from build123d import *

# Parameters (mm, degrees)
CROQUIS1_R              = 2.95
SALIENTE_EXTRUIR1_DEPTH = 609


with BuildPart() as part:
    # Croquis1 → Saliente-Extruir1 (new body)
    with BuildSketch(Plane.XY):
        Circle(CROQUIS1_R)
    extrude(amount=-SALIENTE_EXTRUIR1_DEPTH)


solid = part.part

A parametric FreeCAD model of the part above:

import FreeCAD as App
import Part
import Sketcher
Q = App.Units.Quantity

doc = App.newDocument("Part")
body = doc.addObject("PartDesign::Body", "Body")

sketch1 = body.newObject("Sketcher::SketchObject", "Sketch")
sketch1.AttachmentSupport = (doc.getObject("XY_Plane"), [""])
sketch1.MapMode = "FlatFace"
sketch1.addGeometry(Part.Circle(App.Vector(0, 0, 0), App.Vector(0, 0, 1), 3), False)
sketch1.addConstraint(Sketcher.Constraint("Coincident", 0, 3, -1, 1))
sketch1.addConstraint(Sketcher.Constraint("Diameter", 0, Q("5.9 mm")))
pad1 = body.newObject("PartDesign::Pad", "Pad")
pad1.Profile = sketch1
pad1.Length = 609
pad1.Reversed = True

doc.recompute()
